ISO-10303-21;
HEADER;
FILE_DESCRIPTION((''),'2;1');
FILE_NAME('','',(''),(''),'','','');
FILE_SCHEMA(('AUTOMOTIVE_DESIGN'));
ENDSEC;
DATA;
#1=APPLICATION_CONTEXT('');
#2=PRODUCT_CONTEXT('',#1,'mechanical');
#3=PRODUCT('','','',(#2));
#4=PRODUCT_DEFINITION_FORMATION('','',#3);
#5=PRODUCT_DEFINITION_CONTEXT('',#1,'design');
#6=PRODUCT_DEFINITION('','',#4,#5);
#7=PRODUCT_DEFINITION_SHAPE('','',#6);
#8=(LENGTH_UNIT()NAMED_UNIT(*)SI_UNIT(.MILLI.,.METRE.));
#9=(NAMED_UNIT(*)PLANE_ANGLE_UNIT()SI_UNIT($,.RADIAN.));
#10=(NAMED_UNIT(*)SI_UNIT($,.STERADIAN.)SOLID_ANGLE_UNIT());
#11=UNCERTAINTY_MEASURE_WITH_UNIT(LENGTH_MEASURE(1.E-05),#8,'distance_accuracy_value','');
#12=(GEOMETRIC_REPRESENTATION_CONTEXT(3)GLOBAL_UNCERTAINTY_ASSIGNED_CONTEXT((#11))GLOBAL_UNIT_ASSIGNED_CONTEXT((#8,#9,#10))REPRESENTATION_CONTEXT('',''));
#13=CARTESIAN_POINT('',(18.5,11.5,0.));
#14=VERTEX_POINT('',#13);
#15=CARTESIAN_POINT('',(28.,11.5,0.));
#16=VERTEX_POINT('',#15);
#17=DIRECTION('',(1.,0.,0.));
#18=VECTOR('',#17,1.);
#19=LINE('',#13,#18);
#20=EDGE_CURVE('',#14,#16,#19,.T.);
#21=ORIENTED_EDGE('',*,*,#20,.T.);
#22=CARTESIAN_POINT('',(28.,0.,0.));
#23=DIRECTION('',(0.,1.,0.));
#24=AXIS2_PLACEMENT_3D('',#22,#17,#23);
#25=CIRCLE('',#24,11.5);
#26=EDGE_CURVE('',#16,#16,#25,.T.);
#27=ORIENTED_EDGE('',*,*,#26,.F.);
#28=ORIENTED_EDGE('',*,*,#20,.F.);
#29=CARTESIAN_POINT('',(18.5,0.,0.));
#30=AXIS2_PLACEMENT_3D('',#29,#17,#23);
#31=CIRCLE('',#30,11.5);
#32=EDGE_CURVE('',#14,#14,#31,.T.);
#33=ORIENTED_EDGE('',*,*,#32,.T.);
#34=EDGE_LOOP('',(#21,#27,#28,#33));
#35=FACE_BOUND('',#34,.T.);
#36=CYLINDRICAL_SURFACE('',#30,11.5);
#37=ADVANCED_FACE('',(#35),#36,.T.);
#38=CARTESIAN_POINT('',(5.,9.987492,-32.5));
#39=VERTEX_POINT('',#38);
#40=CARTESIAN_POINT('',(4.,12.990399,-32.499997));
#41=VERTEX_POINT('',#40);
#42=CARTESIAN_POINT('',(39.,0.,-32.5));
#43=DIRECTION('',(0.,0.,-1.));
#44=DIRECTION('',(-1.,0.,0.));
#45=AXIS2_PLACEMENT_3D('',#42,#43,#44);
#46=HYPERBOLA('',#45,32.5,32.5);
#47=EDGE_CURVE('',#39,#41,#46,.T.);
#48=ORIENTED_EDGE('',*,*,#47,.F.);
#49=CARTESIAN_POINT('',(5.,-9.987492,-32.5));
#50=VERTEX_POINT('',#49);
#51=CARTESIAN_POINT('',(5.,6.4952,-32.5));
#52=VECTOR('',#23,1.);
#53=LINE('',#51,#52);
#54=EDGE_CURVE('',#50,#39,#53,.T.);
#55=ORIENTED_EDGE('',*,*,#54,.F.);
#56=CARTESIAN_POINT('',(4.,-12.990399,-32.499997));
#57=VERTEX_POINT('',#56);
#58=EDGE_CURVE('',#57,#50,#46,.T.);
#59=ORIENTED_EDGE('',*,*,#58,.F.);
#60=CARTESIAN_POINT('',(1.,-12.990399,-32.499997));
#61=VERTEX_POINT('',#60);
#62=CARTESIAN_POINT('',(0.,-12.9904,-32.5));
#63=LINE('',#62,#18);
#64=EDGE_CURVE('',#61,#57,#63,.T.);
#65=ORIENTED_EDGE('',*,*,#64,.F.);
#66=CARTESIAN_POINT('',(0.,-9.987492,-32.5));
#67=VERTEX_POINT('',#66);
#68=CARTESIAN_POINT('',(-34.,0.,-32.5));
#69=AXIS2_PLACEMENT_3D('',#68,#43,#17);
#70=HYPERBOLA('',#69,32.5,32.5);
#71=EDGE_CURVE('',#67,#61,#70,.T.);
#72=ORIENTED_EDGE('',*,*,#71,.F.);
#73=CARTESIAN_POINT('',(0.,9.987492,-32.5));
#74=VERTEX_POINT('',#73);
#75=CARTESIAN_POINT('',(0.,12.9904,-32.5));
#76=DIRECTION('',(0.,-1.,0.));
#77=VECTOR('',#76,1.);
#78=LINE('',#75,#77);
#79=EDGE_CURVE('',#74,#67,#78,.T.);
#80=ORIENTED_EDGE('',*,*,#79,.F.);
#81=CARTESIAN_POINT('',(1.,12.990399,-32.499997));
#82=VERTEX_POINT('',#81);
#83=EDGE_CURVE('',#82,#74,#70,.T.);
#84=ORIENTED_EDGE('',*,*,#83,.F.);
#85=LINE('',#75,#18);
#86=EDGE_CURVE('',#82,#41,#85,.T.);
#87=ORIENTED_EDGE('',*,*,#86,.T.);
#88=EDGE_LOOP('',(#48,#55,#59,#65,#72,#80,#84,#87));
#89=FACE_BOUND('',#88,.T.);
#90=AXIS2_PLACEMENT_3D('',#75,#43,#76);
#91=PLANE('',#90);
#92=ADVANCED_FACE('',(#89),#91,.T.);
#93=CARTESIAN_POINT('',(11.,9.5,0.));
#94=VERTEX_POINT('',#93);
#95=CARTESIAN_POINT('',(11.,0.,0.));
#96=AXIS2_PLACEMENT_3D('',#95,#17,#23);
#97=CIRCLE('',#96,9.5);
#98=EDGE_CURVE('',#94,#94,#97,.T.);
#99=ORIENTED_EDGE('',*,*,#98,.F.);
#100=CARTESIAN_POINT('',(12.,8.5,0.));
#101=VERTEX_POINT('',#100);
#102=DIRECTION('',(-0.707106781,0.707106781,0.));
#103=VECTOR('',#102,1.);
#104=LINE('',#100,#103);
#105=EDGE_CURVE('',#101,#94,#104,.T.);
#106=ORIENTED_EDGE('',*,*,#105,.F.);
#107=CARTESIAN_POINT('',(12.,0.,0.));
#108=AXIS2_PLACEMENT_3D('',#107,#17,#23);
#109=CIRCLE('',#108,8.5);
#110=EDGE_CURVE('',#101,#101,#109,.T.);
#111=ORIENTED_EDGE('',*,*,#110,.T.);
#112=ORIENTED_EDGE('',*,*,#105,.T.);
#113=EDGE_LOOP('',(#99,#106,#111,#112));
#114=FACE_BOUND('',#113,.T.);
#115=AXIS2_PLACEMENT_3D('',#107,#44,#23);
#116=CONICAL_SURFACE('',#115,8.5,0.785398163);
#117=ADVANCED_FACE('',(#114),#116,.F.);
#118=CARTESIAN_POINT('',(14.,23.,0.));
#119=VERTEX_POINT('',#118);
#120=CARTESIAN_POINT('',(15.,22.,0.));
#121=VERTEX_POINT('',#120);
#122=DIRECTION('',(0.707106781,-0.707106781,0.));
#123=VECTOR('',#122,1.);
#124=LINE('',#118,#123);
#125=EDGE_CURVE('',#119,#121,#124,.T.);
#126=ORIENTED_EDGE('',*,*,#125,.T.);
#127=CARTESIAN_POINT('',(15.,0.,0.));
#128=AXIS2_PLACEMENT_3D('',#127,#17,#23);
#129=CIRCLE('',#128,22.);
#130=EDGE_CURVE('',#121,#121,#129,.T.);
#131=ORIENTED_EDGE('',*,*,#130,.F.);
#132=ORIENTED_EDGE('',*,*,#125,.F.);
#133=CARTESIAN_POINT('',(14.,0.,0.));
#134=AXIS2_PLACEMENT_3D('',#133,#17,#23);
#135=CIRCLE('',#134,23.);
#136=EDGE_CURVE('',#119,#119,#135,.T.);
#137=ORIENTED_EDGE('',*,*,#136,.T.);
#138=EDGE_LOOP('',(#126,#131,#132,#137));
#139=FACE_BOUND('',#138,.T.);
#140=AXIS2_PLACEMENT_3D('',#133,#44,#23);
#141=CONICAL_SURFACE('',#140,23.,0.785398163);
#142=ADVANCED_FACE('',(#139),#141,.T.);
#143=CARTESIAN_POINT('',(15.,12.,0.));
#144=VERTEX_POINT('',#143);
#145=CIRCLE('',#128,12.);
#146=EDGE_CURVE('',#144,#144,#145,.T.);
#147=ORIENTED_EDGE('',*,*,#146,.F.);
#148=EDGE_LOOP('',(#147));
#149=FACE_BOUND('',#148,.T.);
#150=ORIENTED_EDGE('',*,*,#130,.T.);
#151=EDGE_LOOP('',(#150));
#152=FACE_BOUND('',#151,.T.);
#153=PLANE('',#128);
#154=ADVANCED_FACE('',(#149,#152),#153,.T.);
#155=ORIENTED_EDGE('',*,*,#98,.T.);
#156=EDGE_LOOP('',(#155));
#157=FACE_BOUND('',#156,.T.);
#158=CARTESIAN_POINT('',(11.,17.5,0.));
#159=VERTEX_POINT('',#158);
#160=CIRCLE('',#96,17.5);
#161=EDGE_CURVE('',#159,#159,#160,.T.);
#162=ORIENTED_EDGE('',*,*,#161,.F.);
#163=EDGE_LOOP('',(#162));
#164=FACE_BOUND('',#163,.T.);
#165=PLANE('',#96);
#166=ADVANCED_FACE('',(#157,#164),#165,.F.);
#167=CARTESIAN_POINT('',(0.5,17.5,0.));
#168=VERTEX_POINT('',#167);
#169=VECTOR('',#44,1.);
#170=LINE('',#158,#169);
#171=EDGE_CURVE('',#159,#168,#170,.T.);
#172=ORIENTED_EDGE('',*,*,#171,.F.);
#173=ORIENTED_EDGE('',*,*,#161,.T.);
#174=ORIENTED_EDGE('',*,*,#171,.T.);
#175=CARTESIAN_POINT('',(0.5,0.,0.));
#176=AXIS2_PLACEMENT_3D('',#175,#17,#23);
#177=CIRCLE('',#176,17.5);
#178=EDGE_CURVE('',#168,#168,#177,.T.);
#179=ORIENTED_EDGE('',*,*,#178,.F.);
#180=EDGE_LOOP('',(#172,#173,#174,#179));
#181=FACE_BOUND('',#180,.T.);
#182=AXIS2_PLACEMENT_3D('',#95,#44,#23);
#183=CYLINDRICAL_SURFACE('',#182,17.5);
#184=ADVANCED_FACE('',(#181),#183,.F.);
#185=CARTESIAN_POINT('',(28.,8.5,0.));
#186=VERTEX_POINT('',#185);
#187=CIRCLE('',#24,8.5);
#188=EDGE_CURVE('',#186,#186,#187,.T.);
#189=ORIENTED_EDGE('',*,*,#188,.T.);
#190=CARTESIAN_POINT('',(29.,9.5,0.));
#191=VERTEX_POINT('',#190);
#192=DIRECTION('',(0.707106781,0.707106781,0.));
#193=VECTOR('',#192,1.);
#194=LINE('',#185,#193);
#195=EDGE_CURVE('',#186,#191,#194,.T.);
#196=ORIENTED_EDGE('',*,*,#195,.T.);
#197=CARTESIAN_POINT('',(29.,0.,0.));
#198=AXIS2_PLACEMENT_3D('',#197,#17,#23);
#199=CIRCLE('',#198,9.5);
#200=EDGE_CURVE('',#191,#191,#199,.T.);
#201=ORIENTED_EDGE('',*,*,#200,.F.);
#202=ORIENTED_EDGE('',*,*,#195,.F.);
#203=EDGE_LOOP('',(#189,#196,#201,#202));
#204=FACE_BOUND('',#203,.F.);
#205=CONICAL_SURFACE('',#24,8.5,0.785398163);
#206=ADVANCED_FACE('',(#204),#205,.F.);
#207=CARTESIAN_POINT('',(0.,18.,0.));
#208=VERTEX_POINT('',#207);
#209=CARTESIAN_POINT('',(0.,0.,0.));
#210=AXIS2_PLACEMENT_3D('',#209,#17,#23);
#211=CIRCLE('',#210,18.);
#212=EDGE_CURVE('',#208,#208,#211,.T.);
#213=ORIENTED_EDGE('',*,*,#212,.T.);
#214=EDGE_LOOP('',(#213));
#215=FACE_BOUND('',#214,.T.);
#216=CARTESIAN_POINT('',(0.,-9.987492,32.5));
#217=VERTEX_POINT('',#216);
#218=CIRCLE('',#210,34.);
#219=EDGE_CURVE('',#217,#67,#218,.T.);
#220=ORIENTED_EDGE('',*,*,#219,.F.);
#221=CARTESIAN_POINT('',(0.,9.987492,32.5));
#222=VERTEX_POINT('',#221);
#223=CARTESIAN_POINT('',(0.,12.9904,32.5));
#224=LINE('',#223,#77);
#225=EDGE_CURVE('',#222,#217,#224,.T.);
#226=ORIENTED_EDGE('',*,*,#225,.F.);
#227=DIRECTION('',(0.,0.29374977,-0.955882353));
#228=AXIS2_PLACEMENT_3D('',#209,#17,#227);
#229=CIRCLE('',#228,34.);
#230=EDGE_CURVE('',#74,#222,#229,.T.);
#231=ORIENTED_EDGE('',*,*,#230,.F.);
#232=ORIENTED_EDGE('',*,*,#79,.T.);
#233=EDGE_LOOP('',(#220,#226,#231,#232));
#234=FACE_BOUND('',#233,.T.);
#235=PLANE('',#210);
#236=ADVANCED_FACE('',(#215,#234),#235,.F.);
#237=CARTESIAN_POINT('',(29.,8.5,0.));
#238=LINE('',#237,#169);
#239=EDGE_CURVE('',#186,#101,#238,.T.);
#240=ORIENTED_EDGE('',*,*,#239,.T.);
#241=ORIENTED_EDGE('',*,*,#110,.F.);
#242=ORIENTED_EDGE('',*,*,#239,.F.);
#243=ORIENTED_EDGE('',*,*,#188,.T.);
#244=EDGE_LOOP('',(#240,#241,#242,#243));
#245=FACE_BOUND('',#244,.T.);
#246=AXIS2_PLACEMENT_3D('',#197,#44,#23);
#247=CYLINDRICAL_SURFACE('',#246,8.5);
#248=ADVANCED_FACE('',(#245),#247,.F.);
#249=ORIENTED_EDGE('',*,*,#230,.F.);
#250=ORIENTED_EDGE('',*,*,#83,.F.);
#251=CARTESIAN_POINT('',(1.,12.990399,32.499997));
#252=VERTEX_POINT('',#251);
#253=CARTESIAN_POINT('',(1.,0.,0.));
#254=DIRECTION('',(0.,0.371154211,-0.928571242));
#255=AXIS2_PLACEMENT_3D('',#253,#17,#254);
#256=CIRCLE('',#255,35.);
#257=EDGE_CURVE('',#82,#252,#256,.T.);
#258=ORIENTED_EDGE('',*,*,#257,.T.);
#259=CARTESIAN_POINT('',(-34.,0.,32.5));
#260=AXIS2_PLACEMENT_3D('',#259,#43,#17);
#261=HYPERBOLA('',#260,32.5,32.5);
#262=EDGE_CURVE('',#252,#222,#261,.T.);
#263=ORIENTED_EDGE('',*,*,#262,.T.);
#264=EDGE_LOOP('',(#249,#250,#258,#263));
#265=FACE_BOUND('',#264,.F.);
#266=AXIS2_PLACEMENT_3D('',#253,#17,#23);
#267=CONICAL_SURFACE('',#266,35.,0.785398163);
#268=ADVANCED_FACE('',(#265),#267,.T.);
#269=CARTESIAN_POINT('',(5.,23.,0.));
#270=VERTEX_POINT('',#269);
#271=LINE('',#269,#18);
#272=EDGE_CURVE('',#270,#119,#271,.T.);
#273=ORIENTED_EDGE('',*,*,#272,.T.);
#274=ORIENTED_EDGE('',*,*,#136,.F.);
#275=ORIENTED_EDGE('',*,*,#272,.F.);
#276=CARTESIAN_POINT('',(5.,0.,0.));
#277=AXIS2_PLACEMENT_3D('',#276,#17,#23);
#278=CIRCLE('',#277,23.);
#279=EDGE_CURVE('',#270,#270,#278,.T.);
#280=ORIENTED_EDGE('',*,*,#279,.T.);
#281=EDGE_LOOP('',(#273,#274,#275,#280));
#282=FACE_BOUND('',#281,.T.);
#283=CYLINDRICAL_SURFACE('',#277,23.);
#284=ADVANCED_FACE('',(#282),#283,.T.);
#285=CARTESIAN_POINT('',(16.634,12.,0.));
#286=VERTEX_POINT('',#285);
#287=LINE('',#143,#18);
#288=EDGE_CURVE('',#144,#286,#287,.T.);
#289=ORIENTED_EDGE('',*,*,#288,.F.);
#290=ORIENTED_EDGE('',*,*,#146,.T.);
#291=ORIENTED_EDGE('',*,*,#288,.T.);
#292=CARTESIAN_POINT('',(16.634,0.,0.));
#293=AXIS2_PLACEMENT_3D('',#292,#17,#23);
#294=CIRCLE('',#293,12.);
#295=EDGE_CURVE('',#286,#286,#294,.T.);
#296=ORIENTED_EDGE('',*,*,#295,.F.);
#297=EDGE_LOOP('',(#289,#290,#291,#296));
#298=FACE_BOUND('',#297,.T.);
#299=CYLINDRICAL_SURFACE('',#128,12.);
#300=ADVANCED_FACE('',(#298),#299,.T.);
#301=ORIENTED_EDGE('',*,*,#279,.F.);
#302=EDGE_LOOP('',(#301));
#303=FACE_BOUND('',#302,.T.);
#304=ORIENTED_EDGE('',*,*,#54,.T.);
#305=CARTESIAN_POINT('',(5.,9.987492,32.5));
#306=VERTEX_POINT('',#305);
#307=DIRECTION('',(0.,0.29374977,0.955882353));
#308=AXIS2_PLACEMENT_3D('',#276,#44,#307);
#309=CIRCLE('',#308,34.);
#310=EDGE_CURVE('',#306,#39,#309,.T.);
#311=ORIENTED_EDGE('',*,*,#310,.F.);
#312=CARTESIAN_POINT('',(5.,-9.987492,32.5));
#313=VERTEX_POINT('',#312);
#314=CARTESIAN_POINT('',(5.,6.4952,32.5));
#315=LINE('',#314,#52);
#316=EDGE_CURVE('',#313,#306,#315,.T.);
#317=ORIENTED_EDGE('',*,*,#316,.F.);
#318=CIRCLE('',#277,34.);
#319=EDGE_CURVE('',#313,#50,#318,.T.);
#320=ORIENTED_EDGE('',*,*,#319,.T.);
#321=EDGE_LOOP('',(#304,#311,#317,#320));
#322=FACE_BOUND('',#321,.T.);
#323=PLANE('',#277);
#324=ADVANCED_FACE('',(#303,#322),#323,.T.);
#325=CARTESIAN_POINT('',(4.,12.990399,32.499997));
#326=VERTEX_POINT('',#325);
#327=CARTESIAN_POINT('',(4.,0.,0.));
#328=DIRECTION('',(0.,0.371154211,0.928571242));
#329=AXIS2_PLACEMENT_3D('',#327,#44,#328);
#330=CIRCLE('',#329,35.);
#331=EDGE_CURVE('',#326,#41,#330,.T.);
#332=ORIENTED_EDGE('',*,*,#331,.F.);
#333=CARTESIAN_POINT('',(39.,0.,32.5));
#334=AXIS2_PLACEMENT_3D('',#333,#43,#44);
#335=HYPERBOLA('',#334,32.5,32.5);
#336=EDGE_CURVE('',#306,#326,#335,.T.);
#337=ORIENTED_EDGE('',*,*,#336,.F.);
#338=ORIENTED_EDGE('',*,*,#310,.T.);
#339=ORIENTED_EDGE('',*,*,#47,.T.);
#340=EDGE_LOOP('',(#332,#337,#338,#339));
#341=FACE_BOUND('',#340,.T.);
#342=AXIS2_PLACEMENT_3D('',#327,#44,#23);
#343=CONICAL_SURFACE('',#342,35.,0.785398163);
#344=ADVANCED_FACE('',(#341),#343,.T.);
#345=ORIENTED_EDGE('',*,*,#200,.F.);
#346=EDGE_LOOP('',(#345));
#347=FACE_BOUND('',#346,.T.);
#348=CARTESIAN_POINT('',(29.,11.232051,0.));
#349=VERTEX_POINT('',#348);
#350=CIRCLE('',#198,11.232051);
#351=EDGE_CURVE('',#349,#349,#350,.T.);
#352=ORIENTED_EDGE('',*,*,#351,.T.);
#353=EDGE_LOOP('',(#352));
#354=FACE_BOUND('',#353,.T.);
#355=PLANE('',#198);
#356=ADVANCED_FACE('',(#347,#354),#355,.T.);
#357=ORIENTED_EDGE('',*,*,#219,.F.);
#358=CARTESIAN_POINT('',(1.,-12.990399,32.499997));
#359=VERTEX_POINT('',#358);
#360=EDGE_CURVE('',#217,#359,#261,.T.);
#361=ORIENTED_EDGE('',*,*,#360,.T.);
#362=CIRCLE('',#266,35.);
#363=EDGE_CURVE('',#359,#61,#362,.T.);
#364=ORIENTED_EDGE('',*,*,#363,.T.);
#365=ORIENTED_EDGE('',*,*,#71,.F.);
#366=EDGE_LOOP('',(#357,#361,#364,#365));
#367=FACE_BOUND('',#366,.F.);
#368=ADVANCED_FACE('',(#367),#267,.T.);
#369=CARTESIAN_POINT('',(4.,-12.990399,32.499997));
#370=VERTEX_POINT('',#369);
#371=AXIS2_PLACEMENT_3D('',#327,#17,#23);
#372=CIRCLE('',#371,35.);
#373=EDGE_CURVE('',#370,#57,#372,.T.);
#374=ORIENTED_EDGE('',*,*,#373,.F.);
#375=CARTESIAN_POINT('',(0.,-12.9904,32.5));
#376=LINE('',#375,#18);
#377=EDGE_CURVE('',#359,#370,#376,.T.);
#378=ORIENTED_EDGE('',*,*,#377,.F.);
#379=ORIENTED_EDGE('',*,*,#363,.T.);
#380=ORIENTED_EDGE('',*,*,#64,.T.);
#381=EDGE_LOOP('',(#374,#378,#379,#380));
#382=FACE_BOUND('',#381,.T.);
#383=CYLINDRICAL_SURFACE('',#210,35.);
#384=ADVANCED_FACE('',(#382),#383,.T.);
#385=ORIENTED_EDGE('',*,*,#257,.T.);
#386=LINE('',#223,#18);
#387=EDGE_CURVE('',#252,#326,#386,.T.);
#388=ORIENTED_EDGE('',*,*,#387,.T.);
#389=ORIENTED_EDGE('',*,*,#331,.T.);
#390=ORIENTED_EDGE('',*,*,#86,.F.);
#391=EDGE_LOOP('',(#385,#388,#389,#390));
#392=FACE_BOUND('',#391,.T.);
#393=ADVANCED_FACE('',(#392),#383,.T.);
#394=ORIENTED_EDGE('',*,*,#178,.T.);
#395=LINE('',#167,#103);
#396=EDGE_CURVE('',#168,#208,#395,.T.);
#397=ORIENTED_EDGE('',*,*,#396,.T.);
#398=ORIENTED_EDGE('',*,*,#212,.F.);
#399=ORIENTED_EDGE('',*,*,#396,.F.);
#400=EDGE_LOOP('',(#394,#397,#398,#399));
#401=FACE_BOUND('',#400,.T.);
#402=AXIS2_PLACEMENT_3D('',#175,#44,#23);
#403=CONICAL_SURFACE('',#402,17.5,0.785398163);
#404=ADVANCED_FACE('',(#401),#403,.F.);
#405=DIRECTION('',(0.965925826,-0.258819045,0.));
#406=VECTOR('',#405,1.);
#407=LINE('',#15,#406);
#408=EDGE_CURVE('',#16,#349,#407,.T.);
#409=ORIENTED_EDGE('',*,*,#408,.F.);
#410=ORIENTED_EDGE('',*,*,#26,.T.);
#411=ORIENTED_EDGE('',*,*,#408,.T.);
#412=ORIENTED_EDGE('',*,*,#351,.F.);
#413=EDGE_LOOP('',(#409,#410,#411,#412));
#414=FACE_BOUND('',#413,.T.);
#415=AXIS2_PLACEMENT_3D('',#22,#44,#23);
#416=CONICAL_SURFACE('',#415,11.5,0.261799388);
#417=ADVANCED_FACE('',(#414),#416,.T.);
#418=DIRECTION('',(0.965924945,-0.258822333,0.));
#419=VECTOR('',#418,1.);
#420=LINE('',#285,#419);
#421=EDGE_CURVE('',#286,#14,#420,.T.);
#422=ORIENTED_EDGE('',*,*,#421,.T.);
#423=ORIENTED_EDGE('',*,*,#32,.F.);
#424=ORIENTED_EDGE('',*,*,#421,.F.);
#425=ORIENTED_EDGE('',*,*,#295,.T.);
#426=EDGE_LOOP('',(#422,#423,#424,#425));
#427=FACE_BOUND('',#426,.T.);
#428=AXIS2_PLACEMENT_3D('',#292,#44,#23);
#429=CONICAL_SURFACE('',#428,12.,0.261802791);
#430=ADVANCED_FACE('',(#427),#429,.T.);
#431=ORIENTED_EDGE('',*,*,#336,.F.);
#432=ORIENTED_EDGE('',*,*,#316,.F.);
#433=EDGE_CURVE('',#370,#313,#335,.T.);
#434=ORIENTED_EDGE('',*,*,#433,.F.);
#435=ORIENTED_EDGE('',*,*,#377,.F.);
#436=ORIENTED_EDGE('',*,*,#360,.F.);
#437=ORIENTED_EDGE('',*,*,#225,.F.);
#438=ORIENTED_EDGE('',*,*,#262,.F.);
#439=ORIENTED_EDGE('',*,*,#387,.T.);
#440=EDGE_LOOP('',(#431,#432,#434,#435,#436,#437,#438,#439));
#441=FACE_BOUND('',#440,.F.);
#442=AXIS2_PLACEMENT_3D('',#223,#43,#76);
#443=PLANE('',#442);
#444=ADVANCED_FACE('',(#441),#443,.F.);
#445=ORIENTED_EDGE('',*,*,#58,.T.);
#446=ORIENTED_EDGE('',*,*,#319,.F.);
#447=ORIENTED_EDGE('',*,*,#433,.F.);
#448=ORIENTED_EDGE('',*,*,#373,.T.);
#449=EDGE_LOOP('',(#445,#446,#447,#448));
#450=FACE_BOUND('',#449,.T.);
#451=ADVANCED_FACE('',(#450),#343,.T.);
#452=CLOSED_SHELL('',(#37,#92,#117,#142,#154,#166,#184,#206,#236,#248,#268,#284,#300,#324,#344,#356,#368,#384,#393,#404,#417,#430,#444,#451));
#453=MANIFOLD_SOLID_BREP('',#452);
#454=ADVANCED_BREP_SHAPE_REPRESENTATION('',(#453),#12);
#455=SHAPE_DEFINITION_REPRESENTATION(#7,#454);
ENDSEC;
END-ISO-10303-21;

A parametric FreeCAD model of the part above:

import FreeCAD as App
import Part
import Sketcher
Q = App.Units.Quantity


def edges_at(feature, points):
    """Names of the edges that pass closest to the given points."""
    edges = feature.Shape.Edges
    near = lambda p: min(range(len(edges)), key=lambda i: edges[i].distToShape(Part.Vertex(*p))[0])
    return sorted({f"Edge{near(p) + 1}" for p in points})


def add_polygon(sketch, points):
    """Adds a closed chain of lines whose ends are joined by coincident constraints."""
    first, n = sketch.GeometryCount, len(points)
    for a, b in zip(points, points[1:] + points[:1]):
        sketch.addGeometry(Part.LineSegment(App.Vector(*a, 0), App.Vector(*b, 0)), False)
    for i in range(n):
        sketch.addConstraint(Sketcher.Constraint("Coincident", first + i, 2, first + (i + 1) % n, 1))

doc = App.newDocument("Part")
body = doc.addObject("PartDesign::Body", "Body")

# Sketch on XY plane
sketch1 = body.newObject("Sketcher::SketchObject", "Sketch")
sketch1.AttachmentSupport = (doc.getObject("XY_Plane"), [""])
sketch1.MapMode = "FlatFace"
add_polygon(sketch1, [(0, 35), (0, 17.5), (11, 17.5), (11, 8.5), (29, 8.5), (29, 11.5), (18.5, 11.5), (16.6, 12), (15, 12), (15, 23), (5, 23), (5, 35)])  # lines 0-11
sketch1.addConstraint([
    Sketcher.Constraint("Vertical", 0),
    Sketcher.Constraint("Horizontal", 1),
    Sketcher.Constraint("Vertical", 2),
    Sketcher.Constraint("Horizontal", 3),
    Sketcher.Constraint("Vertical", 4),
    Sketcher.Constraint("Horizontal", 5),
    Sketcher.Constraint("Horizontal", 7),
    Sketcher.Constraint("Vertical", 8),
    Sketcher.Constraint("Horizontal", 9),
    Sketcher.Constraint("Vertical", 10),
    Sketcher.Constraint("Horizontal", 11),
    Sketcher.Constraint("PointOnObject", 0, 2, -2),
    Sketcher.Constraint("Equal", 1, 8),
    Sketcher.Constraint("DistanceX", 1, 1, 1, 2, Q("11 mm")),
    Sketcher.Constraint("DistanceX", 5, 2, 5, 1, Q("10.5 mm")),
    Sketcher.Constraint("DistanceX", -1, 1, 3, 2, Q("29 mm")),
    Sketcher.Constraint("DistanceX", -1, 1, 7, 2, Q("15 mm")),
    Sketcher.Constraint("DistanceY", -1, 1, 8, 2, Q("23 mm")),
    Sketcher.Constraint("DistanceY", -1, 1, 10, 2, Q("35 mm")),
    Sketcher.Constraint("DistanceX", 9, 2, 9, 1, Q("10 mm")),
    Sketcher.Constraint("DistanceY", 2, 2, 2, 1, Q("9 mm")),
    Sketcher.Constraint("DistanceY", 4, 1, 4, 2, Q("3 mm")),
    Sketcher.Constraint("Angle", 6, Q("164.9998 deg")),
    Sketcher.Constraint("DistanceY", 0, 2, 0, 1, Q("17.5 mm")),
])
revolution = body.newObject("PartDesign::Revolution", "Revolution")
revolution.Profile = sketch1
revolution.ReferenceAxis = (sketch1, ["H_Axis"])
revolution.Angle = 360
doc.recompute()

chamfer = body.newObject("PartDesign::Chamfer", "Chamfer")
chamfer.Base = (revolution, edges_at(revolution, [(15, -23, 0)]))
chamfer.Size = 1
doc.recompute()

chamfer2 = body.newObject("PartDesign::Chamfer", "Chamfer001")
chamfer2.Base = (chamfer, edges_at(chamfer, [(29, -11.5, 0)]))
chamfer2.ChamferType = "Distance and Angle"
chamfer2.Size = 1
chamfer2.Angle = 15
doc.recompute()

chamfer3 = body.newObject("PartDesign::Chamfer", "Chamfer002")
chamfer3.Base = (chamfer2, edges_at(chamfer2, [(0, -17.5, 0)]))
chamfer3.Size = 0.5
doc.recompute()

chamfer4 = body.newObject("PartDesign::Chamfer", "Chamfer003")
chamfer4.Base = (chamfer3, edges_at(chamfer3, [(29, -8.5, 0)]))
chamfer4.Size = 1
doc.recompute()

chamfer5 = body.newObject("PartDesign::Chamfer", "Chamfer004")
chamfer5.Base = (chamfer4, edges_at(chamfer4, [(11, -8.5, 0)]))
chamfer5.Size = 1
doc.recompute()

chamfer6 = body.newObject("PartDesign::Chamfer", "Chamfer005")
chamfer6.Base = (chamfer5, edges_at(chamfer5, [(5, -35, 0)]))
chamfer6.Size = 1
doc.recompute()

chamfer7 = body.newObject("PartDesign::Chamfer", "Chamfer006")
chamfer7.Base = (chamfer6, edges_at(chamfer6, [(0, -35, 0)]))
chamfer7.Size = 1

# Sketch on YZ plane
sketch2 = body.newObject("Sketcher::SketchObject", "Sketch001")
sketch2.AttachmentSupport = (doc.getObject("YZ_Plane"), [""])
sketch2.MapMode = "FlatFace"
add_polygon(sketch2, [(13, -32), (13, -39), (-13, -39), (-13, -32)])  # lines 0-3
add_polygon(sketch2, [(-13, 53), (13, 53), (13, 32), (-13, 32)])  # lines 4-7
sketch2.addConstraint([
    Sketcher.Constraint("Vertical", 0),
    Sketcher.Constraint("Horizontal", 1),
    Sketcher.Constraint("Vertical", 2),
    Sketcher.Constraint("Horizontal", 3),
    Sketcher.Constraint("Horizontal", 4),
    Sketcher.Constraint("Vertical", 5),
    Sketcher.Constraint("Horizontal", 6),
    Sketcher.Constraint("Vertical", 7),
    Sketcher.Constraint("Symmetric", 2, 2, 5, 2, -1, 1),
    Sketcher.Constraint("Vertical", 3, 2, 4, 2),
    Sketcher.Constraint("Vertical", 2, 2, 6, 2),
    Sketcher.Constraint("DistanceY", 3, 2, 5, 2, Q("65 mm")),
    Sketcher.Constraint("DistanceY", 5, 2, 5, 1, Q("20.433 mm")),
    Sketcher.Constraint("DistanceX", 1, 2, 1, 1, Q("25.9808 mm")),
    Sketcher.Constraint("DistanceY", 0, 2, 0, 1, Q("6.8312 mm")),
])
pocket1 = body.newObject("PartDesign::Pocket", "Pocket")
pocket1.Profile = sketch2
pocket1.Type = "ThroughAll"
pocket1.Reversed = True

doc.recompute()
